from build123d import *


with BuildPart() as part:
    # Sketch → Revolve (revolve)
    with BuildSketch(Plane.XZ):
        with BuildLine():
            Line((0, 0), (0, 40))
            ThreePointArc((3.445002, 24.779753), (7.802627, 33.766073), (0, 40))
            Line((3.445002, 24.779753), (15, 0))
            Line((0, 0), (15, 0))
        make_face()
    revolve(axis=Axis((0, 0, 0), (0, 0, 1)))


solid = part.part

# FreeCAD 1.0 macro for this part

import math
import FreeCAD as App
import Part
import Sketcher
Q = App.Units.Quantity

doc = App.newDocument("Part")
body = doc.addObject("PartDesign::Body", "Body")

# Sketch on XZ plane
sketch1 = body.newObject("Sketcher::SketchObject", "Sketch")
sketch1.AttachmentSupport = (doc.getObject("XZ_Plane"), [""])
sketch1.MapMode = "FlatFace"
sketch1.addGeometry([
    Part.LineSegment(App.Vector(0, 40, 0), App.Vector(0, 0, 0)),
    Part.LineSegment(App.Vector(0, 0, 0), App.Vector(15, 0, 0)),
    Part.LineSegment(App.Vector(15, 0, 0), App.Vector(3, 25, 0)),
    Part.ArcOfCircle(Part.Circle(App.Vector(0, 32, 0), App.Vector(0, 0, 1), 8), math.radians(-64), math.radians(90)),
], False)
sketch1.addConstraint([
    Sketcher.Constraint("Coincident", 0, 2, 1, 1),
    Sketcher.Constraint("Coincident", 1, 2, 2, 1),
    Sketcher.Constraint("Coincident", 2, 2, 3, 1),
    Sketcher.Constraint("Coincident", 3, 2, 0, 1),
    Sketcher.Constraint("Vertical", 0),
    Sketcher.Constraint("Horizontal", 1),
    Sketcher.Constraint("Coincident", 0, 2, -1, 1),
    Sketcher.Constraint("PointOnObject", 3, 3, -2),
    Sketcher.Constraint("Radius", 3, Q("8 mm")),
    Sketcher.Constraint("DistanceX", 1, 1, 1, 2, Q("15 mm")),
    Sketcher.Constraint("DistanceY", 0, 2, 0, 1, Q("40 mm")),
    Sketcher.Constraint("Angle", 2, Q("115.000018 deg")),
])
revolution = body.newObject("PartDesign::Revolution", "Revolution")
revolution.Profile = sketch1
revolution.ReferenceAxis = (sketch1, ["V_Axis"])
revolution.Angle = 360

doc.recompute()
